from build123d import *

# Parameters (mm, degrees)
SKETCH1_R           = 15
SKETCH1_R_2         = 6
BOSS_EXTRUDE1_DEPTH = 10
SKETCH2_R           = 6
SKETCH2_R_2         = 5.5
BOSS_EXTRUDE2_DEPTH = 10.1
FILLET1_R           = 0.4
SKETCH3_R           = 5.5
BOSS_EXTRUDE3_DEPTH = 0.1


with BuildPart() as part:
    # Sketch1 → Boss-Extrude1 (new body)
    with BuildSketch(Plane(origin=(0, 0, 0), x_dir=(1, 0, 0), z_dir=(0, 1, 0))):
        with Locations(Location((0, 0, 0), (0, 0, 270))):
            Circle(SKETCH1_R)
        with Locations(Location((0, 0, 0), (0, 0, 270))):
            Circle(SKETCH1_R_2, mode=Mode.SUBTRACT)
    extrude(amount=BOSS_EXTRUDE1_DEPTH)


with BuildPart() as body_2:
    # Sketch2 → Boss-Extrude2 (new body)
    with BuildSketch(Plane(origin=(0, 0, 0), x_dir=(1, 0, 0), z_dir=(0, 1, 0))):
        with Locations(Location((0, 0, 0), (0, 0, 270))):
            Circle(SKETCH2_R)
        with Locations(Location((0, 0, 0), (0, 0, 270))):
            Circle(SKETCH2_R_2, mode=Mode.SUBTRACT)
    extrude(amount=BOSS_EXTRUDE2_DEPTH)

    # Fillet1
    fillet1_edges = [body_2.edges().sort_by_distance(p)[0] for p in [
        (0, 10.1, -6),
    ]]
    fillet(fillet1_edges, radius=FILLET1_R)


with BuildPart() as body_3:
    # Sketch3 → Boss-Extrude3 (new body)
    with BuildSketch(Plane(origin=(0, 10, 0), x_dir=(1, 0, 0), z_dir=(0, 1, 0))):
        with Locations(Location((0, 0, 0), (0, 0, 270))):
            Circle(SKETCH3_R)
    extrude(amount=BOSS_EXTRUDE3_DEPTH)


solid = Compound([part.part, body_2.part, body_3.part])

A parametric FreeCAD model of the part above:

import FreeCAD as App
import Part
import Sketcher
from FreeCAD import Vector


def edges_at(feature, points):
    """Names of the edges that pass closest to the given points."""
    edges = feature.Shape.Edges
    near = lambda p: min(range(len(edges)), key=lambda i: edges[i].distToShape(Part.Vertex(*p))[0])
    return sorted({f"Edge{near(p) + 1}" for p in points})

doc = App.newDocument("Part")
body = doc.addObject("PartDesign::Body", "Body")

# Sketch on XZ plane
sketch1 = body.newObject("Sketcher::SketchObject", "Sketch")
sketch1.AttachmentSupport = (doc.getObject("XZ_Plane"), [""])
sketch1.MapMode = "FlatFace"
sketch1.addGeometry([
    Part.Circle(Vector(0, 0, 0), Vector(0, 0, 1), 15),
    Part.Circle(Vector(0, 0, 0), Vector(0, 0, 1), 6),
], False)
sketch1.addConstraint([
    Sketcher.Constraint("Coincident", 0, 3, -1, 1),
    Sketcher.Constraint("Coincident", 1, 3, -1, 1),
    Sketcher.Constraint("Diameter", 0, 30.0),
    Sketcher.Constraint("Diameter", 1, 12.0),
])
pad1 = body.newObject("PartDesign::Pad", "Pad")
pad1.Profile = sketch1
pad1.Length = 10
pad1.Reversed = True
body2 = doc.addObject("PartDesign::Body", "Body001")

# Sketch on XZ plane
sketch2 = body2.newObject("Sketcher::SketchObject", "Sketch001")
sketch2.AttachmentSupport = (doc.getObject("XZ_Plane001"), [""])
sketch2.MapMode = "FlatFace"
sketch2.addGeometry([
    Part.Circle(Vector(0, 0, 0), Vector(0, 0, 1), 6),
    Part.Circle(Vector(0, 0, 0), Vector(0, 0, 1), 6),
], False)
sketch2.addConstraint([
    Sketcher.Constraint("Coincident", 0, 3, -1, 1),
    Sketcher.Constraint("Coincident", 1, 3, -1, 1),
    Sketcher.Constraint("Diameter", 0, 12.0),
    Sketcher.Constraint("Diameter", 1, 11.0),
])
pad2 = body2.newObject("PartDesign::Pad", "Pad001")
pad2.Profile = sketch2
pad2.Length = 10.1
pad2.Reversed = True
doc.recompute()

fillet = body2.newObject("PartDesign::Fillet", "Fillet")
fillet.Base = (pad2, edges_at(pad2, [(0, 10.1, -6)]))
fillet.Radius = 0.4
body3 = doc.addObject("PartDesign::Body", "Body002")

# Sketch on XZ plane
sketch3 = body3.newObject("Sketcher::SketchObject", "Sketch002")
sketch3.AttachmentSupport = (doc.getObject("XZ_Plane002"), [""])
sketch3.MapMode = "FlatFace"
sketch3.AttachmentOffset = App.Placement(Vector(0, 0, -10), App.Rotation())
sketch3.addGeometry(Part.Circle(Vector(0, 0, 0), Vector(0, 0, 1), 6), False)
sketch3.addConstraint([
    Sketcher.Constraint("Coincident", 0, 3, -1, 1),
    Sketcher.Constraint("Diameter", 0, 11.0),
])
pad3 = body3.newObject("PartDesign::Pad", "Pad002")
pad3.Profile = sketch3
pad3.Length = 0.1
pad3.Reversed = True

doc.recompute()
